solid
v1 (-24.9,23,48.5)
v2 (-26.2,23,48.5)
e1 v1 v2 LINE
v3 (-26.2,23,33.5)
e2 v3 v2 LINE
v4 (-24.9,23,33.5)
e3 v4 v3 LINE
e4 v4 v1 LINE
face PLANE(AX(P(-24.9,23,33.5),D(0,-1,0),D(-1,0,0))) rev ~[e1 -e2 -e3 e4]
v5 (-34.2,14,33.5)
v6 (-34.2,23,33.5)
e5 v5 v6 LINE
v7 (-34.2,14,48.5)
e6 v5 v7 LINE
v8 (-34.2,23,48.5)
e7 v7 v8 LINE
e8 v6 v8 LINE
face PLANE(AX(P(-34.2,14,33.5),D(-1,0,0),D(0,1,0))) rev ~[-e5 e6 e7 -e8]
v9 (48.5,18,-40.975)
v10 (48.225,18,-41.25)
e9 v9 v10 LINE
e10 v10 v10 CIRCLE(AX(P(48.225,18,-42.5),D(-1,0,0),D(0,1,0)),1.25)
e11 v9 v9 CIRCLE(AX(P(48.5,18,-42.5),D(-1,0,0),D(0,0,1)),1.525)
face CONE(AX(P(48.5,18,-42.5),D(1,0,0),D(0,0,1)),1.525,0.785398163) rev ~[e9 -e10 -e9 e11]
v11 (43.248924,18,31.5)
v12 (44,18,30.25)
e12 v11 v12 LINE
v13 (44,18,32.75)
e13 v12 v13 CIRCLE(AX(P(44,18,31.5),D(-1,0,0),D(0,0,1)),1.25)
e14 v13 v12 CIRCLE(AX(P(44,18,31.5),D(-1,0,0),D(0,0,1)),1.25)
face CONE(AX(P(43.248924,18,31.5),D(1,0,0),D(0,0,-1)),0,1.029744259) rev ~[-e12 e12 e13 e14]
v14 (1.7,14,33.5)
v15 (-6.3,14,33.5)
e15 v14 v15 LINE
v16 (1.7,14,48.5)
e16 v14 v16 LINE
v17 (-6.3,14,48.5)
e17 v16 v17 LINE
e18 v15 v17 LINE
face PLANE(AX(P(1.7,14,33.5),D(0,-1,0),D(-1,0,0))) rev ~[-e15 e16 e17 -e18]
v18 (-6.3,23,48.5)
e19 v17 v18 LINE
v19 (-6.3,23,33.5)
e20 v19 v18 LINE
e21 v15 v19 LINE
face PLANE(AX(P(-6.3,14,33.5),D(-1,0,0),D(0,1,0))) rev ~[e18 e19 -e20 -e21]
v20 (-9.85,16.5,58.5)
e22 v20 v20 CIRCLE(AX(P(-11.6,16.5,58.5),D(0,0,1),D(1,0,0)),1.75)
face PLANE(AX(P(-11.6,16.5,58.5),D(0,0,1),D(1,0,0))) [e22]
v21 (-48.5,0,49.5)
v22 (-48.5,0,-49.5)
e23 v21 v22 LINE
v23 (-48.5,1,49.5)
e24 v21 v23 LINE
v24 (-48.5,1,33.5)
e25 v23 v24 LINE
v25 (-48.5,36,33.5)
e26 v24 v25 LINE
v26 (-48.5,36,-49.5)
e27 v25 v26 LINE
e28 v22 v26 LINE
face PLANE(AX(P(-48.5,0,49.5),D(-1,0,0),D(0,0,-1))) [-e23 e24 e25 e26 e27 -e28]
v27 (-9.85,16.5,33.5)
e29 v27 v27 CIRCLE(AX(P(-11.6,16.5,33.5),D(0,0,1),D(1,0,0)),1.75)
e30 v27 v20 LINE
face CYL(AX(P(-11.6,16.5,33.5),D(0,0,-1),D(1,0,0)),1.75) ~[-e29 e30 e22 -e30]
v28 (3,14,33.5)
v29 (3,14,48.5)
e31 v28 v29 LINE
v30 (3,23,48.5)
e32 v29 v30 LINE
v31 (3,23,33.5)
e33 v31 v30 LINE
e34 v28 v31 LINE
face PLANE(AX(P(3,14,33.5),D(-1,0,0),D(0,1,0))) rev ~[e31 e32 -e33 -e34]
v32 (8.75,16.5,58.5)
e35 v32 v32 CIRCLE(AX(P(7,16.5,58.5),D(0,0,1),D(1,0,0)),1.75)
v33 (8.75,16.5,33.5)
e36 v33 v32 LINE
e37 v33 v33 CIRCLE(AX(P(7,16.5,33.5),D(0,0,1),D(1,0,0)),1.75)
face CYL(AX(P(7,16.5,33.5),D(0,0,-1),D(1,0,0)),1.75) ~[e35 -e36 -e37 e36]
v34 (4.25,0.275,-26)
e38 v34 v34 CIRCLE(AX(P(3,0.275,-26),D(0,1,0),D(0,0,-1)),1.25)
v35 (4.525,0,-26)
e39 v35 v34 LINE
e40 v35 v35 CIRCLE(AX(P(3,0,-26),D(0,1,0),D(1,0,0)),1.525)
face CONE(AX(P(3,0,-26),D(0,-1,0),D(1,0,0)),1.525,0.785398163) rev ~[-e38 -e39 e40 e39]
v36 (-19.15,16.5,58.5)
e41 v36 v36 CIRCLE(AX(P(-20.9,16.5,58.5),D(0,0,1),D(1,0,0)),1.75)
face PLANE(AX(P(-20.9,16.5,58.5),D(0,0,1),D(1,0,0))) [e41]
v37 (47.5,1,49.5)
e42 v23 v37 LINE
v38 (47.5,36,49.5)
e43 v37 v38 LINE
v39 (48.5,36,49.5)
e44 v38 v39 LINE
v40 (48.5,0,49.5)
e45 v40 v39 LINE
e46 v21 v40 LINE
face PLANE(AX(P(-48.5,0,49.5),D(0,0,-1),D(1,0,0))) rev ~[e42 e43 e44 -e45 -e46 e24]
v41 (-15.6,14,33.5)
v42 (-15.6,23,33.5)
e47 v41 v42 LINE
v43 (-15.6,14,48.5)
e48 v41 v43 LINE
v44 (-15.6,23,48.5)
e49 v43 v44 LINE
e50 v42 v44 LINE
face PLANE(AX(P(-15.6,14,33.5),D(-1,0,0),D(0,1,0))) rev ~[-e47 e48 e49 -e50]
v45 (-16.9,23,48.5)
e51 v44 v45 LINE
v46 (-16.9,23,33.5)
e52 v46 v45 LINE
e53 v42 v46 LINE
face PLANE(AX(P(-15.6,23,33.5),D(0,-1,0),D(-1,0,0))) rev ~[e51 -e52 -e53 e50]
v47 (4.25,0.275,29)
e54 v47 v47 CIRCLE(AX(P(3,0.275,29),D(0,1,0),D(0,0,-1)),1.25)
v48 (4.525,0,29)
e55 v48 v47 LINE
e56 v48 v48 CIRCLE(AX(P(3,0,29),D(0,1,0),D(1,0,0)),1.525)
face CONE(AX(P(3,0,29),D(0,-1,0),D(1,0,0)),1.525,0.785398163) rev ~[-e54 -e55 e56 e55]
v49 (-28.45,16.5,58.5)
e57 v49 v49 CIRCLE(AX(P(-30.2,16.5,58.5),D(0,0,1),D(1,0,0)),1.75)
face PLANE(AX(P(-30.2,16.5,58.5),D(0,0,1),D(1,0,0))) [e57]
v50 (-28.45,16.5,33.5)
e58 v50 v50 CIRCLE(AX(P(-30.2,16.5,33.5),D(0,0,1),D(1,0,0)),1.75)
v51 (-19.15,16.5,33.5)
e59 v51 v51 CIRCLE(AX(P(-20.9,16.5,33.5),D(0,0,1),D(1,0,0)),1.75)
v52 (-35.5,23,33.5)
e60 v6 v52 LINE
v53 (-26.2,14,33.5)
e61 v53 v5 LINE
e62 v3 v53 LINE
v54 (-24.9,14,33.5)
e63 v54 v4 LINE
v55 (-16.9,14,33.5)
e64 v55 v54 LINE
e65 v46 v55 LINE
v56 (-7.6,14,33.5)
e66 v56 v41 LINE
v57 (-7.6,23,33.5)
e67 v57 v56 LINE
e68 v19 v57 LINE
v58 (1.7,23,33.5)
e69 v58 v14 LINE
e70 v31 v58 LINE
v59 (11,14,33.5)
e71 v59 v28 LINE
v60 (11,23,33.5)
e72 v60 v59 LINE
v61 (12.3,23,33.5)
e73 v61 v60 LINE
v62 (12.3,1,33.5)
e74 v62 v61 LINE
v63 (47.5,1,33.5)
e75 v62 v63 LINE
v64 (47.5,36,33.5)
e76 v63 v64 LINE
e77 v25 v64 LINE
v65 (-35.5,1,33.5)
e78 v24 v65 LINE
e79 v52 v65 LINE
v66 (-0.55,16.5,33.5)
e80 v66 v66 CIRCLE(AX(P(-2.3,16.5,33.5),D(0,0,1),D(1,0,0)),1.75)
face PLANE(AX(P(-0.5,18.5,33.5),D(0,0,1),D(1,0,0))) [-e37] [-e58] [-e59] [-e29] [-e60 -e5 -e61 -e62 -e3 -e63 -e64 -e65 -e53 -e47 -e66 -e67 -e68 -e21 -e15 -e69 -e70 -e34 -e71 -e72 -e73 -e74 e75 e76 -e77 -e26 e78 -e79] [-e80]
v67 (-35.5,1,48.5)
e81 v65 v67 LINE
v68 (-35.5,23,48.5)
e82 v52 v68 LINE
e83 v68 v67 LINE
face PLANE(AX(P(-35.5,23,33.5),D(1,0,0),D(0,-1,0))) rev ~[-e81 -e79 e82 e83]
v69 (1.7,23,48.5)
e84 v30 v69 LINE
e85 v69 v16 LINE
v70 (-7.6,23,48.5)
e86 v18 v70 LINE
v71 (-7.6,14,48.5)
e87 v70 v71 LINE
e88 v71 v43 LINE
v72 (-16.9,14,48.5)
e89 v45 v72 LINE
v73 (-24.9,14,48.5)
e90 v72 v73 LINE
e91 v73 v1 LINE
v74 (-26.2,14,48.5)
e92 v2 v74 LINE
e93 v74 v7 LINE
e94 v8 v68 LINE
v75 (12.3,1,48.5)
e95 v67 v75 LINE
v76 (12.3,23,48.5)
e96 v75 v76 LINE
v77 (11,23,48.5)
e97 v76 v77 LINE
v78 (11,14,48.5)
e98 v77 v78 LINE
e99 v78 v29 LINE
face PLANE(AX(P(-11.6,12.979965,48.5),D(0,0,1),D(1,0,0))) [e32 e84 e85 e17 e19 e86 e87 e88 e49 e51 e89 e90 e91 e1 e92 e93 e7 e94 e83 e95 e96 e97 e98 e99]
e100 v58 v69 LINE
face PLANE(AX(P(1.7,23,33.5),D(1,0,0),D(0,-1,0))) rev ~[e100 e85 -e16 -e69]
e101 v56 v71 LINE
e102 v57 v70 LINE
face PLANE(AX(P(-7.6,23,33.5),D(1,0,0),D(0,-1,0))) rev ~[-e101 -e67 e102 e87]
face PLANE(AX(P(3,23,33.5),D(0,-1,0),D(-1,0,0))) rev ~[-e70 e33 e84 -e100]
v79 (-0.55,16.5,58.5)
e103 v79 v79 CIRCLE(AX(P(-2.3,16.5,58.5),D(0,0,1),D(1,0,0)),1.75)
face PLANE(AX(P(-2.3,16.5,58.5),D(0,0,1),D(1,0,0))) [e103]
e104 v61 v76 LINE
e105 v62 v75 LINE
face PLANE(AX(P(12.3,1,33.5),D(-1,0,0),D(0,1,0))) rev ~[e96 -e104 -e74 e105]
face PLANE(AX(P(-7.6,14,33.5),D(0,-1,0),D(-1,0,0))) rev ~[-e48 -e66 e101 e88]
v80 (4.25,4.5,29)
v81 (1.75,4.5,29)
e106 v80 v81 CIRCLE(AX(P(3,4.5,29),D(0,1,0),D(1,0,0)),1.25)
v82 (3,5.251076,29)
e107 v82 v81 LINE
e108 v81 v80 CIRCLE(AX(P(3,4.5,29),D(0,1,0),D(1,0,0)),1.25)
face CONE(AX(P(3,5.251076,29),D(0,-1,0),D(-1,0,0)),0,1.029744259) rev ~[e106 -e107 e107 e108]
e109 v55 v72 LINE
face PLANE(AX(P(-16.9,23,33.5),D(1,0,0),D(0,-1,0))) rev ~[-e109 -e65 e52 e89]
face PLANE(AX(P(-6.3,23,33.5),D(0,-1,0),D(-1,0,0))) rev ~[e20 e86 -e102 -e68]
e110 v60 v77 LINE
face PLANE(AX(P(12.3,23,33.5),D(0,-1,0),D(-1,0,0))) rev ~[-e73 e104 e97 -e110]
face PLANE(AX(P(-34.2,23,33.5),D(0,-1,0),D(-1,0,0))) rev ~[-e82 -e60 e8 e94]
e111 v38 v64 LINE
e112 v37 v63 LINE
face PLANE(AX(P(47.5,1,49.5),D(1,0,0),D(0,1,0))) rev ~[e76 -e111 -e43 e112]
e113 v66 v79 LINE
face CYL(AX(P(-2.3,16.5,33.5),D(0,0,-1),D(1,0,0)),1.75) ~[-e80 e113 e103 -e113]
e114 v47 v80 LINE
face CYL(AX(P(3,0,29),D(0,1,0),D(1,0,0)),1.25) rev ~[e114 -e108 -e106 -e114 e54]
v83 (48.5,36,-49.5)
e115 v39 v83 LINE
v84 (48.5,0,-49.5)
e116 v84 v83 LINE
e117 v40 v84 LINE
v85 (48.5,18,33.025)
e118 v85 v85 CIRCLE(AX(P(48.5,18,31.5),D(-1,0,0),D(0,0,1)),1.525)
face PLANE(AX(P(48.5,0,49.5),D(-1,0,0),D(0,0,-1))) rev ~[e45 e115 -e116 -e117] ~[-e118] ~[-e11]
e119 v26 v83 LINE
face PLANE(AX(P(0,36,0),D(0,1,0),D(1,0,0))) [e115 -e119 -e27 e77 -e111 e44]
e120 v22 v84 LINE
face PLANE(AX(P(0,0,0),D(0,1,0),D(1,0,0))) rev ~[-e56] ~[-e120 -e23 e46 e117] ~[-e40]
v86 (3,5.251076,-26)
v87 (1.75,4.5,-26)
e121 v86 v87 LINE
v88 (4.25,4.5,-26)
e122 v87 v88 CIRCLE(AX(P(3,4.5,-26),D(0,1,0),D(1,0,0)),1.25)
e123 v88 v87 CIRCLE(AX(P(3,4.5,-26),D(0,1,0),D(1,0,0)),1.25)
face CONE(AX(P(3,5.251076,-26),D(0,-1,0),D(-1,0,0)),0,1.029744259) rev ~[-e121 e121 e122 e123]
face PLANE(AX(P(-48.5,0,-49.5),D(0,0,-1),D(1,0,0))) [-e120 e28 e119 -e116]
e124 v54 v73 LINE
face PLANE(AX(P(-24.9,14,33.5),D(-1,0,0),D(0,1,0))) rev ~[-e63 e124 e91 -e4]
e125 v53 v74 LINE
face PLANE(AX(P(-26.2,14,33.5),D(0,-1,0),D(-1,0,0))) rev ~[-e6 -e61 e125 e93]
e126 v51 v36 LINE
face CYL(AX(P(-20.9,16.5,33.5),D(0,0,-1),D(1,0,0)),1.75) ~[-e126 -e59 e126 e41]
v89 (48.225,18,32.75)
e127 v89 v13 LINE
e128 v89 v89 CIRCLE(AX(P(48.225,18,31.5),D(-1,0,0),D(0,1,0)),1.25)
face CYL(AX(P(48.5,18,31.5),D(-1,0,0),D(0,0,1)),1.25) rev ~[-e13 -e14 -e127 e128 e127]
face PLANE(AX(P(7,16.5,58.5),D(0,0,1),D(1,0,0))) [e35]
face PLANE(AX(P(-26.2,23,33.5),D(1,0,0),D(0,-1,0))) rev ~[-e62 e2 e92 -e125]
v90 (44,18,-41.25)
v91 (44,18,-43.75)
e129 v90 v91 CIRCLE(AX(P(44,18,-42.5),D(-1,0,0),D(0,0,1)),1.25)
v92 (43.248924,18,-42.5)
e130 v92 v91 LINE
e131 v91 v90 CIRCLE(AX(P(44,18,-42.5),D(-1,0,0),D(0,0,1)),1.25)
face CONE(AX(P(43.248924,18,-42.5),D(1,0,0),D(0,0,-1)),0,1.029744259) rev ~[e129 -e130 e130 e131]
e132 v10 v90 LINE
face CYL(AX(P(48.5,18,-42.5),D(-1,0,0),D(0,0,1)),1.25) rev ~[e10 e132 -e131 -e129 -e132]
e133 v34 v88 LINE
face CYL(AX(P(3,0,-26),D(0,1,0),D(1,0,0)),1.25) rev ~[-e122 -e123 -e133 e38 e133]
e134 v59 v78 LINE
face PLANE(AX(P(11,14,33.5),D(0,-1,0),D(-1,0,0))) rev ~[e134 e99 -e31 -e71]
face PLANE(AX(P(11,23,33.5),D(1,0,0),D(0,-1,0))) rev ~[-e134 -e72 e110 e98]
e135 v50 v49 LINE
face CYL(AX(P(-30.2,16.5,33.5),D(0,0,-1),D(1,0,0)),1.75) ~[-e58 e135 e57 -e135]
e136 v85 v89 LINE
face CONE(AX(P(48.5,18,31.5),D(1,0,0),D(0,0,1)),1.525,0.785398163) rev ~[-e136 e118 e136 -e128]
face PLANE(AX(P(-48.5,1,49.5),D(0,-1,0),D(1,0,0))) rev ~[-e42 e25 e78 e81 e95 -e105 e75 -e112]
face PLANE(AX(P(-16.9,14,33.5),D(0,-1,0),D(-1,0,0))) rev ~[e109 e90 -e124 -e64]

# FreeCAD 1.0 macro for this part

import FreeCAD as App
import Part
import Sketcher
from FreeCAD import Vector


def add_polygon(sketch, points):
    """Adds a closed chain of lines whose ends are joined by coincident constraints."""
    first, n = sketch.GeometryCount, len(points)
    for a, b in zip(points, points[1:] + points[:1]):
        sketch.addGeometry(Part.LineSegment(App.Vector(*a, 0), App.Vector(*b, 0)), False)
    for i in range(n):
        sketch.addConstraint(Sketcher.Constraint("Coincident", first + i, 2, first + (i + 1) % n, 1))

doc = App.newDocument("Part")
body = doc.addObject("PartDesign::Body", "Body")

# Sketch on XZ plane
sketch1 = body.newObject("Sketcher::SketchObject", "Sketch")
sketch1.AttachmentSupport = (doc.getObject("XZ_Plane"), [""])
sketch1.MapMode = "FlatFace"
add_polygon(sketch1, [(-48.5, -49.5), (-48.5, 49.5), (48.5, 49.5), (48.5, -49.5)])  # lines 0-3
sketch1.addConstraint([
    Sketcher.Constraint("Vertical", 0),
    Sketcher.Constraint("Horizontal", 1),
    Sketcher.Constraint("Vertical", 2),
    Sketcher.Constraint("Horizontal", 3),
    Sketcher.Constraint("Symmetric", 0, 2, 2, 2, -1, 1),
    Sketcher.Constraint("DistanceX", 1, 1, 1, 2, 97.0),
    Sketcher.Constraint("DistanceY", 0, 1, 0, 2, 99.0),
])
pad1 = body.newObject("PartDesign::Pad", "Pad")
pad1.Profile = sketch1
pad1.Length = 36
pad1.Reversed = True

# Sketch on XY plane
sketch2 = body.newObject("Sketcher::SketchObject", "Sketch001")
sketch2.AttachmentSupport = (doc.getObject("XY_Plane"), [""])
sketch2.MapMode = "FlatFace"
sketch2.AttachmentOffset = App.Placement(Vector(0, 0, 49.5), App.Rotation())
add_polygon(sketch2, [(-48.5, 36), (-48.5, 1), (47.5, 1), (47.5, 36)])  # lines 0-3
sketch2.addConstraint([
    Sketcher.Constraint("Vertical", 0),
    Sketcher.Constraint("Horizontal", 1),
    Sketcher.Constraint("Vertical", 2),
    Sketcher.Constraint("Horizontal", 3),
    Sketcher.Constraint("DistanceX", 1, 1, 1, 2, 96.0),
    Sketcher.Constraint("DistanceY", 0, 2, 0, 1, 35.0),
    Sketcher.Constraint("DistanceY", -1, 1, 0, 2, 1.0),
    Sketcher.Constraint("DistanceX", 0, 2, -1, 1, 48.5),
])
pocket1 = body.newObject("PartDesign::Pocket", "Pocket")
pocket1.Profile = sketch2
pocket1.Length = 16

# Sketch on XY plane
sketch3 = body.newObject("Sketcher::SketchObject", "Sketch002")
sketch3.AttachmentSupport = (doc.getObject("XY_Plane"), [""])
sketch3.MapMode = "FlatFace"
sketch3.AttachmentOffset = App.Placement(Vector(0, 0, 33.5), App.Rotation())
add_polygon(sketch3, [(-35.5, 1), (12.3, 1), (12.3, 23), (11, 23), (11, 14), (3, 14), (3, 23), (1.7, 23), (1.7, 14), (-6.3, 14), (-6.3, 23), (-7.6, 23), (-7.6, 14), (-15.6, 14), (-15.6, 23), (-16.9, 23), (-16.9, 14), (-24.9, 14), (-24.9, 23), (-26.2, 23), (-26.2, 14), (-34.2, 14), (-34.2, 23), (-35.5, 23)])  # lines 0-23
sketch3.addConstraint([
    Sketcher.Constraint("Horizontal", 0),
    Sketcher.Constraint("Vertical", 1),
    Sketcher.Constraint("Horizontal", 2),
    Sketcher.Constraint("Vertical", 3),
    Sketcher.Constraint("Horizontal", 4),
    Sketcher.Constraint("Vertical", 5),
    Sketcher.Constraint("Horizontal", 6),
    Sketcher.Constraint("Vertical", 7),
    Sketcher.Constraint("Horizontal", 8),
    Sketcher.Constraint("Vertical", 9),
    Sketcher.Constraint("Horizontal", 10),
    Sketcher.Constraint("Vertical", 11),
    Sketcher.Constraint("Horizontal", 12),
    Sketcher.Constraint("Vertical", 13),
    Sketcher.Constraint("Horizontal", 14),
    Sketcher.Constraint("Vertical", 15),
    Sketcher.Constraint("Horizontal", 16),
    Sketcher.Constraint("Vertical", 17),
    Sketcher.Constraint("Horizontal", 18),
    Sketcher.Constraint("Vertical", 19),
    Sketcher.Constraint("Horizontal", 20),
    Sketcher.Constraint("Vertical", 21),
    Sketcher.Constraint("Horizontal", 22),
    Sketcher.Constraint("Vertical", 23),
    Sketcher.Constraint("Horizontal", 2, 2, 5, 2),
    Sketcher.Constraint("Horizontal", 4, 2, 7, 2),
    Sketcher.Constraint("Horizontal", 6, 2, 9, 2),
    Sketcher.Constraint("Horizontal", 8, 2, 11, 2),
    Sketcher.Constraint("Horizontal", 10, 2, 13, 2),
    Sketcher.Constraint("Horizontal", 12, 2, 15, 2),
    Sketcher.Constraint("Horizontal", 14, 2, 17, 2),
    Sketcher.Constraint("Horizontal", 16, 2, 19, 2),
    Sketcher.Constraint("Horizontal", 18, 2, 21, 2),
    Sketcher.Constraint("Equal", 2, 6),
    Sketcher.Constraint("Equal", 4, 8),
    Sketcher.Constraint("Equal", 6, 10),
    Sketcher.Constraint("Equal", 8, 12),
    Sketcher.Constraint("Equal", 10, 14),
    Sketcher.Constraint("Equal", 12, 16),
    Sketcher.Constraint("Equal", 14, 18),
    Sketcher.Constraint("Equal", 16, 20),
    Sketcher.Constraint("Equal", 18, 22),
    Sketcher.Constraint("DistanceX", 4, 2, 4, 1, 8.0),
    Sketcher.Constraint("DistanceY", 1, 1, 1, 2, 22.0),
    Sketcher.Constraint("DistanceY", 3, 2, 3, 1, 9.0),
    Sketcher.Constraint("DistanceX", 0, 1, 0, 2, 47.8),
    Sketcher.Constraint("DistanceY", -1, 1, 0, 2, 1.0),
    Sketcher.Constraint("DistanceX", -1, 1, 2, 2, 11.0),
])
pad2 = body.newObject("PartDesign::Pad", "Pad001")
pad2.Profile = sketch3
pad2.Length = 15

# Sketch on XY plane
sketch4 = body.newObject("Sketcher::SketchObject", "Sketch003")
sketch4.AttachmentSupport = (doc.getObject("XY_Plane"), [""])
sketch4.MapMode = "FlatFace"
sketch4.AttachmentOffset = App.Placement(Vector(0, 0, 33.5), App.Rotation())
sketch4.addGeometry([
    Part.Circle(Vector(-30.2, 16.5, 0), Vector(0, 0, 1), 1.75),  # 0
    Part.Circle(Vector(-20.9, 16.5, 0), Vector(0, 0, 1), 1.75),  # 1
    Part.Circle(Vector(-11.6, 16.5, 0), Vector(0, 0, 1), 1.75),  # 2
    Part.Circle(Vector(-2.3, 16.5, 0), Vector(0, 0, 1), 1.75),  # 3
    Part.Circle(Vector(7, 16.5, 0), Vector(0, 0, 1), 1.75),  # 4
], False)
sketch4.addConstraint([
    Sketcher.Constraint("Equal", 0, 1),
    Sketcher.Constraint("Equal", 1, 2),
    Sketcher.Constraint("Equal", 2, 3),
    Sketcher.Constraint("Equal", 3, 4),
    Sketcher.Constraint("Horizontal", 0, 3, 1, 3),
    Sketcher.Constraint("Horizontal", 1, 3, 2, 3),
    Sketcher.Constraint("Horizontal", 2, 3, 3, 3),
    Sketcher.Constraint("Horizontal", 3, 3, 4, 3),
    Sketcher.Constraint("Diameter", 0, 3.5),
    Sketcher.Constraint("DistanceX", -1, 1, 4, 3, 7.0),
    Sketcher.Constraint("DistanceX", 0, 3, -1, 1, 30.2),
    Sketcher.Constraint("DistanceY", -1, 1, 0, 3, 16.5),
    Sketcher.Constraint("DistanceX", 1, 3, -1, 1, 20.9),
    Sketcher.Constraint("DistanceX", 2, 3, -1, 1, 11.6),
    Sketcher.Constraint("DistanceX", 3, 3, -1, 1, 2.3),
])
pad3 = body.newObject("PartDesign::Pad", "Pad002")
pad3.Profile = sketch4
pad3.Length = 25

# Sketch on YZ plane
sketch5 = body.newObject("Sketcher::SketchObject", "Sketch004")
sketch5.AttachmentSupport = (doc.getObject("YZ_Plane"), [""])
sketch5.MapMode = "FlatFace"
sketch5.AttachmentOffset = App.Placement(Vector(0, 0, 48.5), App.Rotation())
sketch5.addGeometry([
    Part.Circle(Vector(18, 31.5, 0), Vector(0, 0, 1), 1.25),
    Part.Circle(Vector(18, -42.5, 0), Vector(0, 0, 1), 1.25),
], False)
sketch5.addConstraint([
    Sketcher.Constraint("Equal", 0, 1),
    Sketcher.Constraint("Vertical", 0, 3, 1, 3),
    Sketcher.Constraint("Diameter", 0, 2.5),
    Sketcher.Constraint("DistanceX", -1, 1, 0, 3, 18.0),
    Sketcher.Constraint("DistanceY", 1, 3, 0, 3, 74.0),
    Sketcher.Constraint("DistanceY", -1, 1, 0, 3, 31.5),
])
doc.recompute()
hole = body.newObject("PartDesign::Hole", "Hole")
hole.Profile = sketch5
hole.ThreadType = "None"
hole.Diameter = 2.5
hole.DepthType = "Dimension"
hole.Depth = 4.5
hole.DrillPoint = "Angled"
hole.DrillPointAngle = 118
hole.HoleCutType = "Countersink"
hole.HoleCutDiameter = 3.05
hole.HoleCutCountersinkAngle = 90

# Sketch on XZ plane
sketch6 = body.newObject("Sketcher::SketchObject", "Sketch005")
sketch6.AttachmentSupport = (doc.getObject("XZ_Plane"), [""])
sketch6.MapMode = "FlatFace"
sketch6.addGeometry([
    Part.Circle(Vector(3, 29, 0), Vector(0, 0, 1), 1.25),
    Part.Circle(Vector(3, -26, 0), Vector(0, 0, 1), 1.25),
], False)
sketch6.addConstraint([
    Sketcher.Constraint("Equal", 0, 1),
    Sketcher.Constraint("Vertical", 0, 3, 1, 3),
    Sketcher.Constraint("Diameter", 0, 2.5),
    Sketcher.Constraint("DistanceX", -1, 1, 0, 3, 3.0),
    Sketcher.Constraint("DistanceY", -1, 1, 0, 3, 29.0),
    Sketcher.Constraint("DistanceY", 1, 3, -1, 1, 26.0),
])
doc.recompute()
hole2 = body.newObject("PartDesign::Hole", "Hole001")
hole2.Profile = sketch6
hole2.ThreadType = "None"
hole2.Diameter = 2.5
hole2.DepthType = "Dimension"
hole2.Depth = 4.5
hole2.DrillPoint = "Angled"
hole2.DrillPointAngle = 118
hole2.HoleCutType = "Countersink"
hole2.HoleCutDiameter = 3.05
hole2.HoleCutCountersinkAngle = 90

doc.recompute()
